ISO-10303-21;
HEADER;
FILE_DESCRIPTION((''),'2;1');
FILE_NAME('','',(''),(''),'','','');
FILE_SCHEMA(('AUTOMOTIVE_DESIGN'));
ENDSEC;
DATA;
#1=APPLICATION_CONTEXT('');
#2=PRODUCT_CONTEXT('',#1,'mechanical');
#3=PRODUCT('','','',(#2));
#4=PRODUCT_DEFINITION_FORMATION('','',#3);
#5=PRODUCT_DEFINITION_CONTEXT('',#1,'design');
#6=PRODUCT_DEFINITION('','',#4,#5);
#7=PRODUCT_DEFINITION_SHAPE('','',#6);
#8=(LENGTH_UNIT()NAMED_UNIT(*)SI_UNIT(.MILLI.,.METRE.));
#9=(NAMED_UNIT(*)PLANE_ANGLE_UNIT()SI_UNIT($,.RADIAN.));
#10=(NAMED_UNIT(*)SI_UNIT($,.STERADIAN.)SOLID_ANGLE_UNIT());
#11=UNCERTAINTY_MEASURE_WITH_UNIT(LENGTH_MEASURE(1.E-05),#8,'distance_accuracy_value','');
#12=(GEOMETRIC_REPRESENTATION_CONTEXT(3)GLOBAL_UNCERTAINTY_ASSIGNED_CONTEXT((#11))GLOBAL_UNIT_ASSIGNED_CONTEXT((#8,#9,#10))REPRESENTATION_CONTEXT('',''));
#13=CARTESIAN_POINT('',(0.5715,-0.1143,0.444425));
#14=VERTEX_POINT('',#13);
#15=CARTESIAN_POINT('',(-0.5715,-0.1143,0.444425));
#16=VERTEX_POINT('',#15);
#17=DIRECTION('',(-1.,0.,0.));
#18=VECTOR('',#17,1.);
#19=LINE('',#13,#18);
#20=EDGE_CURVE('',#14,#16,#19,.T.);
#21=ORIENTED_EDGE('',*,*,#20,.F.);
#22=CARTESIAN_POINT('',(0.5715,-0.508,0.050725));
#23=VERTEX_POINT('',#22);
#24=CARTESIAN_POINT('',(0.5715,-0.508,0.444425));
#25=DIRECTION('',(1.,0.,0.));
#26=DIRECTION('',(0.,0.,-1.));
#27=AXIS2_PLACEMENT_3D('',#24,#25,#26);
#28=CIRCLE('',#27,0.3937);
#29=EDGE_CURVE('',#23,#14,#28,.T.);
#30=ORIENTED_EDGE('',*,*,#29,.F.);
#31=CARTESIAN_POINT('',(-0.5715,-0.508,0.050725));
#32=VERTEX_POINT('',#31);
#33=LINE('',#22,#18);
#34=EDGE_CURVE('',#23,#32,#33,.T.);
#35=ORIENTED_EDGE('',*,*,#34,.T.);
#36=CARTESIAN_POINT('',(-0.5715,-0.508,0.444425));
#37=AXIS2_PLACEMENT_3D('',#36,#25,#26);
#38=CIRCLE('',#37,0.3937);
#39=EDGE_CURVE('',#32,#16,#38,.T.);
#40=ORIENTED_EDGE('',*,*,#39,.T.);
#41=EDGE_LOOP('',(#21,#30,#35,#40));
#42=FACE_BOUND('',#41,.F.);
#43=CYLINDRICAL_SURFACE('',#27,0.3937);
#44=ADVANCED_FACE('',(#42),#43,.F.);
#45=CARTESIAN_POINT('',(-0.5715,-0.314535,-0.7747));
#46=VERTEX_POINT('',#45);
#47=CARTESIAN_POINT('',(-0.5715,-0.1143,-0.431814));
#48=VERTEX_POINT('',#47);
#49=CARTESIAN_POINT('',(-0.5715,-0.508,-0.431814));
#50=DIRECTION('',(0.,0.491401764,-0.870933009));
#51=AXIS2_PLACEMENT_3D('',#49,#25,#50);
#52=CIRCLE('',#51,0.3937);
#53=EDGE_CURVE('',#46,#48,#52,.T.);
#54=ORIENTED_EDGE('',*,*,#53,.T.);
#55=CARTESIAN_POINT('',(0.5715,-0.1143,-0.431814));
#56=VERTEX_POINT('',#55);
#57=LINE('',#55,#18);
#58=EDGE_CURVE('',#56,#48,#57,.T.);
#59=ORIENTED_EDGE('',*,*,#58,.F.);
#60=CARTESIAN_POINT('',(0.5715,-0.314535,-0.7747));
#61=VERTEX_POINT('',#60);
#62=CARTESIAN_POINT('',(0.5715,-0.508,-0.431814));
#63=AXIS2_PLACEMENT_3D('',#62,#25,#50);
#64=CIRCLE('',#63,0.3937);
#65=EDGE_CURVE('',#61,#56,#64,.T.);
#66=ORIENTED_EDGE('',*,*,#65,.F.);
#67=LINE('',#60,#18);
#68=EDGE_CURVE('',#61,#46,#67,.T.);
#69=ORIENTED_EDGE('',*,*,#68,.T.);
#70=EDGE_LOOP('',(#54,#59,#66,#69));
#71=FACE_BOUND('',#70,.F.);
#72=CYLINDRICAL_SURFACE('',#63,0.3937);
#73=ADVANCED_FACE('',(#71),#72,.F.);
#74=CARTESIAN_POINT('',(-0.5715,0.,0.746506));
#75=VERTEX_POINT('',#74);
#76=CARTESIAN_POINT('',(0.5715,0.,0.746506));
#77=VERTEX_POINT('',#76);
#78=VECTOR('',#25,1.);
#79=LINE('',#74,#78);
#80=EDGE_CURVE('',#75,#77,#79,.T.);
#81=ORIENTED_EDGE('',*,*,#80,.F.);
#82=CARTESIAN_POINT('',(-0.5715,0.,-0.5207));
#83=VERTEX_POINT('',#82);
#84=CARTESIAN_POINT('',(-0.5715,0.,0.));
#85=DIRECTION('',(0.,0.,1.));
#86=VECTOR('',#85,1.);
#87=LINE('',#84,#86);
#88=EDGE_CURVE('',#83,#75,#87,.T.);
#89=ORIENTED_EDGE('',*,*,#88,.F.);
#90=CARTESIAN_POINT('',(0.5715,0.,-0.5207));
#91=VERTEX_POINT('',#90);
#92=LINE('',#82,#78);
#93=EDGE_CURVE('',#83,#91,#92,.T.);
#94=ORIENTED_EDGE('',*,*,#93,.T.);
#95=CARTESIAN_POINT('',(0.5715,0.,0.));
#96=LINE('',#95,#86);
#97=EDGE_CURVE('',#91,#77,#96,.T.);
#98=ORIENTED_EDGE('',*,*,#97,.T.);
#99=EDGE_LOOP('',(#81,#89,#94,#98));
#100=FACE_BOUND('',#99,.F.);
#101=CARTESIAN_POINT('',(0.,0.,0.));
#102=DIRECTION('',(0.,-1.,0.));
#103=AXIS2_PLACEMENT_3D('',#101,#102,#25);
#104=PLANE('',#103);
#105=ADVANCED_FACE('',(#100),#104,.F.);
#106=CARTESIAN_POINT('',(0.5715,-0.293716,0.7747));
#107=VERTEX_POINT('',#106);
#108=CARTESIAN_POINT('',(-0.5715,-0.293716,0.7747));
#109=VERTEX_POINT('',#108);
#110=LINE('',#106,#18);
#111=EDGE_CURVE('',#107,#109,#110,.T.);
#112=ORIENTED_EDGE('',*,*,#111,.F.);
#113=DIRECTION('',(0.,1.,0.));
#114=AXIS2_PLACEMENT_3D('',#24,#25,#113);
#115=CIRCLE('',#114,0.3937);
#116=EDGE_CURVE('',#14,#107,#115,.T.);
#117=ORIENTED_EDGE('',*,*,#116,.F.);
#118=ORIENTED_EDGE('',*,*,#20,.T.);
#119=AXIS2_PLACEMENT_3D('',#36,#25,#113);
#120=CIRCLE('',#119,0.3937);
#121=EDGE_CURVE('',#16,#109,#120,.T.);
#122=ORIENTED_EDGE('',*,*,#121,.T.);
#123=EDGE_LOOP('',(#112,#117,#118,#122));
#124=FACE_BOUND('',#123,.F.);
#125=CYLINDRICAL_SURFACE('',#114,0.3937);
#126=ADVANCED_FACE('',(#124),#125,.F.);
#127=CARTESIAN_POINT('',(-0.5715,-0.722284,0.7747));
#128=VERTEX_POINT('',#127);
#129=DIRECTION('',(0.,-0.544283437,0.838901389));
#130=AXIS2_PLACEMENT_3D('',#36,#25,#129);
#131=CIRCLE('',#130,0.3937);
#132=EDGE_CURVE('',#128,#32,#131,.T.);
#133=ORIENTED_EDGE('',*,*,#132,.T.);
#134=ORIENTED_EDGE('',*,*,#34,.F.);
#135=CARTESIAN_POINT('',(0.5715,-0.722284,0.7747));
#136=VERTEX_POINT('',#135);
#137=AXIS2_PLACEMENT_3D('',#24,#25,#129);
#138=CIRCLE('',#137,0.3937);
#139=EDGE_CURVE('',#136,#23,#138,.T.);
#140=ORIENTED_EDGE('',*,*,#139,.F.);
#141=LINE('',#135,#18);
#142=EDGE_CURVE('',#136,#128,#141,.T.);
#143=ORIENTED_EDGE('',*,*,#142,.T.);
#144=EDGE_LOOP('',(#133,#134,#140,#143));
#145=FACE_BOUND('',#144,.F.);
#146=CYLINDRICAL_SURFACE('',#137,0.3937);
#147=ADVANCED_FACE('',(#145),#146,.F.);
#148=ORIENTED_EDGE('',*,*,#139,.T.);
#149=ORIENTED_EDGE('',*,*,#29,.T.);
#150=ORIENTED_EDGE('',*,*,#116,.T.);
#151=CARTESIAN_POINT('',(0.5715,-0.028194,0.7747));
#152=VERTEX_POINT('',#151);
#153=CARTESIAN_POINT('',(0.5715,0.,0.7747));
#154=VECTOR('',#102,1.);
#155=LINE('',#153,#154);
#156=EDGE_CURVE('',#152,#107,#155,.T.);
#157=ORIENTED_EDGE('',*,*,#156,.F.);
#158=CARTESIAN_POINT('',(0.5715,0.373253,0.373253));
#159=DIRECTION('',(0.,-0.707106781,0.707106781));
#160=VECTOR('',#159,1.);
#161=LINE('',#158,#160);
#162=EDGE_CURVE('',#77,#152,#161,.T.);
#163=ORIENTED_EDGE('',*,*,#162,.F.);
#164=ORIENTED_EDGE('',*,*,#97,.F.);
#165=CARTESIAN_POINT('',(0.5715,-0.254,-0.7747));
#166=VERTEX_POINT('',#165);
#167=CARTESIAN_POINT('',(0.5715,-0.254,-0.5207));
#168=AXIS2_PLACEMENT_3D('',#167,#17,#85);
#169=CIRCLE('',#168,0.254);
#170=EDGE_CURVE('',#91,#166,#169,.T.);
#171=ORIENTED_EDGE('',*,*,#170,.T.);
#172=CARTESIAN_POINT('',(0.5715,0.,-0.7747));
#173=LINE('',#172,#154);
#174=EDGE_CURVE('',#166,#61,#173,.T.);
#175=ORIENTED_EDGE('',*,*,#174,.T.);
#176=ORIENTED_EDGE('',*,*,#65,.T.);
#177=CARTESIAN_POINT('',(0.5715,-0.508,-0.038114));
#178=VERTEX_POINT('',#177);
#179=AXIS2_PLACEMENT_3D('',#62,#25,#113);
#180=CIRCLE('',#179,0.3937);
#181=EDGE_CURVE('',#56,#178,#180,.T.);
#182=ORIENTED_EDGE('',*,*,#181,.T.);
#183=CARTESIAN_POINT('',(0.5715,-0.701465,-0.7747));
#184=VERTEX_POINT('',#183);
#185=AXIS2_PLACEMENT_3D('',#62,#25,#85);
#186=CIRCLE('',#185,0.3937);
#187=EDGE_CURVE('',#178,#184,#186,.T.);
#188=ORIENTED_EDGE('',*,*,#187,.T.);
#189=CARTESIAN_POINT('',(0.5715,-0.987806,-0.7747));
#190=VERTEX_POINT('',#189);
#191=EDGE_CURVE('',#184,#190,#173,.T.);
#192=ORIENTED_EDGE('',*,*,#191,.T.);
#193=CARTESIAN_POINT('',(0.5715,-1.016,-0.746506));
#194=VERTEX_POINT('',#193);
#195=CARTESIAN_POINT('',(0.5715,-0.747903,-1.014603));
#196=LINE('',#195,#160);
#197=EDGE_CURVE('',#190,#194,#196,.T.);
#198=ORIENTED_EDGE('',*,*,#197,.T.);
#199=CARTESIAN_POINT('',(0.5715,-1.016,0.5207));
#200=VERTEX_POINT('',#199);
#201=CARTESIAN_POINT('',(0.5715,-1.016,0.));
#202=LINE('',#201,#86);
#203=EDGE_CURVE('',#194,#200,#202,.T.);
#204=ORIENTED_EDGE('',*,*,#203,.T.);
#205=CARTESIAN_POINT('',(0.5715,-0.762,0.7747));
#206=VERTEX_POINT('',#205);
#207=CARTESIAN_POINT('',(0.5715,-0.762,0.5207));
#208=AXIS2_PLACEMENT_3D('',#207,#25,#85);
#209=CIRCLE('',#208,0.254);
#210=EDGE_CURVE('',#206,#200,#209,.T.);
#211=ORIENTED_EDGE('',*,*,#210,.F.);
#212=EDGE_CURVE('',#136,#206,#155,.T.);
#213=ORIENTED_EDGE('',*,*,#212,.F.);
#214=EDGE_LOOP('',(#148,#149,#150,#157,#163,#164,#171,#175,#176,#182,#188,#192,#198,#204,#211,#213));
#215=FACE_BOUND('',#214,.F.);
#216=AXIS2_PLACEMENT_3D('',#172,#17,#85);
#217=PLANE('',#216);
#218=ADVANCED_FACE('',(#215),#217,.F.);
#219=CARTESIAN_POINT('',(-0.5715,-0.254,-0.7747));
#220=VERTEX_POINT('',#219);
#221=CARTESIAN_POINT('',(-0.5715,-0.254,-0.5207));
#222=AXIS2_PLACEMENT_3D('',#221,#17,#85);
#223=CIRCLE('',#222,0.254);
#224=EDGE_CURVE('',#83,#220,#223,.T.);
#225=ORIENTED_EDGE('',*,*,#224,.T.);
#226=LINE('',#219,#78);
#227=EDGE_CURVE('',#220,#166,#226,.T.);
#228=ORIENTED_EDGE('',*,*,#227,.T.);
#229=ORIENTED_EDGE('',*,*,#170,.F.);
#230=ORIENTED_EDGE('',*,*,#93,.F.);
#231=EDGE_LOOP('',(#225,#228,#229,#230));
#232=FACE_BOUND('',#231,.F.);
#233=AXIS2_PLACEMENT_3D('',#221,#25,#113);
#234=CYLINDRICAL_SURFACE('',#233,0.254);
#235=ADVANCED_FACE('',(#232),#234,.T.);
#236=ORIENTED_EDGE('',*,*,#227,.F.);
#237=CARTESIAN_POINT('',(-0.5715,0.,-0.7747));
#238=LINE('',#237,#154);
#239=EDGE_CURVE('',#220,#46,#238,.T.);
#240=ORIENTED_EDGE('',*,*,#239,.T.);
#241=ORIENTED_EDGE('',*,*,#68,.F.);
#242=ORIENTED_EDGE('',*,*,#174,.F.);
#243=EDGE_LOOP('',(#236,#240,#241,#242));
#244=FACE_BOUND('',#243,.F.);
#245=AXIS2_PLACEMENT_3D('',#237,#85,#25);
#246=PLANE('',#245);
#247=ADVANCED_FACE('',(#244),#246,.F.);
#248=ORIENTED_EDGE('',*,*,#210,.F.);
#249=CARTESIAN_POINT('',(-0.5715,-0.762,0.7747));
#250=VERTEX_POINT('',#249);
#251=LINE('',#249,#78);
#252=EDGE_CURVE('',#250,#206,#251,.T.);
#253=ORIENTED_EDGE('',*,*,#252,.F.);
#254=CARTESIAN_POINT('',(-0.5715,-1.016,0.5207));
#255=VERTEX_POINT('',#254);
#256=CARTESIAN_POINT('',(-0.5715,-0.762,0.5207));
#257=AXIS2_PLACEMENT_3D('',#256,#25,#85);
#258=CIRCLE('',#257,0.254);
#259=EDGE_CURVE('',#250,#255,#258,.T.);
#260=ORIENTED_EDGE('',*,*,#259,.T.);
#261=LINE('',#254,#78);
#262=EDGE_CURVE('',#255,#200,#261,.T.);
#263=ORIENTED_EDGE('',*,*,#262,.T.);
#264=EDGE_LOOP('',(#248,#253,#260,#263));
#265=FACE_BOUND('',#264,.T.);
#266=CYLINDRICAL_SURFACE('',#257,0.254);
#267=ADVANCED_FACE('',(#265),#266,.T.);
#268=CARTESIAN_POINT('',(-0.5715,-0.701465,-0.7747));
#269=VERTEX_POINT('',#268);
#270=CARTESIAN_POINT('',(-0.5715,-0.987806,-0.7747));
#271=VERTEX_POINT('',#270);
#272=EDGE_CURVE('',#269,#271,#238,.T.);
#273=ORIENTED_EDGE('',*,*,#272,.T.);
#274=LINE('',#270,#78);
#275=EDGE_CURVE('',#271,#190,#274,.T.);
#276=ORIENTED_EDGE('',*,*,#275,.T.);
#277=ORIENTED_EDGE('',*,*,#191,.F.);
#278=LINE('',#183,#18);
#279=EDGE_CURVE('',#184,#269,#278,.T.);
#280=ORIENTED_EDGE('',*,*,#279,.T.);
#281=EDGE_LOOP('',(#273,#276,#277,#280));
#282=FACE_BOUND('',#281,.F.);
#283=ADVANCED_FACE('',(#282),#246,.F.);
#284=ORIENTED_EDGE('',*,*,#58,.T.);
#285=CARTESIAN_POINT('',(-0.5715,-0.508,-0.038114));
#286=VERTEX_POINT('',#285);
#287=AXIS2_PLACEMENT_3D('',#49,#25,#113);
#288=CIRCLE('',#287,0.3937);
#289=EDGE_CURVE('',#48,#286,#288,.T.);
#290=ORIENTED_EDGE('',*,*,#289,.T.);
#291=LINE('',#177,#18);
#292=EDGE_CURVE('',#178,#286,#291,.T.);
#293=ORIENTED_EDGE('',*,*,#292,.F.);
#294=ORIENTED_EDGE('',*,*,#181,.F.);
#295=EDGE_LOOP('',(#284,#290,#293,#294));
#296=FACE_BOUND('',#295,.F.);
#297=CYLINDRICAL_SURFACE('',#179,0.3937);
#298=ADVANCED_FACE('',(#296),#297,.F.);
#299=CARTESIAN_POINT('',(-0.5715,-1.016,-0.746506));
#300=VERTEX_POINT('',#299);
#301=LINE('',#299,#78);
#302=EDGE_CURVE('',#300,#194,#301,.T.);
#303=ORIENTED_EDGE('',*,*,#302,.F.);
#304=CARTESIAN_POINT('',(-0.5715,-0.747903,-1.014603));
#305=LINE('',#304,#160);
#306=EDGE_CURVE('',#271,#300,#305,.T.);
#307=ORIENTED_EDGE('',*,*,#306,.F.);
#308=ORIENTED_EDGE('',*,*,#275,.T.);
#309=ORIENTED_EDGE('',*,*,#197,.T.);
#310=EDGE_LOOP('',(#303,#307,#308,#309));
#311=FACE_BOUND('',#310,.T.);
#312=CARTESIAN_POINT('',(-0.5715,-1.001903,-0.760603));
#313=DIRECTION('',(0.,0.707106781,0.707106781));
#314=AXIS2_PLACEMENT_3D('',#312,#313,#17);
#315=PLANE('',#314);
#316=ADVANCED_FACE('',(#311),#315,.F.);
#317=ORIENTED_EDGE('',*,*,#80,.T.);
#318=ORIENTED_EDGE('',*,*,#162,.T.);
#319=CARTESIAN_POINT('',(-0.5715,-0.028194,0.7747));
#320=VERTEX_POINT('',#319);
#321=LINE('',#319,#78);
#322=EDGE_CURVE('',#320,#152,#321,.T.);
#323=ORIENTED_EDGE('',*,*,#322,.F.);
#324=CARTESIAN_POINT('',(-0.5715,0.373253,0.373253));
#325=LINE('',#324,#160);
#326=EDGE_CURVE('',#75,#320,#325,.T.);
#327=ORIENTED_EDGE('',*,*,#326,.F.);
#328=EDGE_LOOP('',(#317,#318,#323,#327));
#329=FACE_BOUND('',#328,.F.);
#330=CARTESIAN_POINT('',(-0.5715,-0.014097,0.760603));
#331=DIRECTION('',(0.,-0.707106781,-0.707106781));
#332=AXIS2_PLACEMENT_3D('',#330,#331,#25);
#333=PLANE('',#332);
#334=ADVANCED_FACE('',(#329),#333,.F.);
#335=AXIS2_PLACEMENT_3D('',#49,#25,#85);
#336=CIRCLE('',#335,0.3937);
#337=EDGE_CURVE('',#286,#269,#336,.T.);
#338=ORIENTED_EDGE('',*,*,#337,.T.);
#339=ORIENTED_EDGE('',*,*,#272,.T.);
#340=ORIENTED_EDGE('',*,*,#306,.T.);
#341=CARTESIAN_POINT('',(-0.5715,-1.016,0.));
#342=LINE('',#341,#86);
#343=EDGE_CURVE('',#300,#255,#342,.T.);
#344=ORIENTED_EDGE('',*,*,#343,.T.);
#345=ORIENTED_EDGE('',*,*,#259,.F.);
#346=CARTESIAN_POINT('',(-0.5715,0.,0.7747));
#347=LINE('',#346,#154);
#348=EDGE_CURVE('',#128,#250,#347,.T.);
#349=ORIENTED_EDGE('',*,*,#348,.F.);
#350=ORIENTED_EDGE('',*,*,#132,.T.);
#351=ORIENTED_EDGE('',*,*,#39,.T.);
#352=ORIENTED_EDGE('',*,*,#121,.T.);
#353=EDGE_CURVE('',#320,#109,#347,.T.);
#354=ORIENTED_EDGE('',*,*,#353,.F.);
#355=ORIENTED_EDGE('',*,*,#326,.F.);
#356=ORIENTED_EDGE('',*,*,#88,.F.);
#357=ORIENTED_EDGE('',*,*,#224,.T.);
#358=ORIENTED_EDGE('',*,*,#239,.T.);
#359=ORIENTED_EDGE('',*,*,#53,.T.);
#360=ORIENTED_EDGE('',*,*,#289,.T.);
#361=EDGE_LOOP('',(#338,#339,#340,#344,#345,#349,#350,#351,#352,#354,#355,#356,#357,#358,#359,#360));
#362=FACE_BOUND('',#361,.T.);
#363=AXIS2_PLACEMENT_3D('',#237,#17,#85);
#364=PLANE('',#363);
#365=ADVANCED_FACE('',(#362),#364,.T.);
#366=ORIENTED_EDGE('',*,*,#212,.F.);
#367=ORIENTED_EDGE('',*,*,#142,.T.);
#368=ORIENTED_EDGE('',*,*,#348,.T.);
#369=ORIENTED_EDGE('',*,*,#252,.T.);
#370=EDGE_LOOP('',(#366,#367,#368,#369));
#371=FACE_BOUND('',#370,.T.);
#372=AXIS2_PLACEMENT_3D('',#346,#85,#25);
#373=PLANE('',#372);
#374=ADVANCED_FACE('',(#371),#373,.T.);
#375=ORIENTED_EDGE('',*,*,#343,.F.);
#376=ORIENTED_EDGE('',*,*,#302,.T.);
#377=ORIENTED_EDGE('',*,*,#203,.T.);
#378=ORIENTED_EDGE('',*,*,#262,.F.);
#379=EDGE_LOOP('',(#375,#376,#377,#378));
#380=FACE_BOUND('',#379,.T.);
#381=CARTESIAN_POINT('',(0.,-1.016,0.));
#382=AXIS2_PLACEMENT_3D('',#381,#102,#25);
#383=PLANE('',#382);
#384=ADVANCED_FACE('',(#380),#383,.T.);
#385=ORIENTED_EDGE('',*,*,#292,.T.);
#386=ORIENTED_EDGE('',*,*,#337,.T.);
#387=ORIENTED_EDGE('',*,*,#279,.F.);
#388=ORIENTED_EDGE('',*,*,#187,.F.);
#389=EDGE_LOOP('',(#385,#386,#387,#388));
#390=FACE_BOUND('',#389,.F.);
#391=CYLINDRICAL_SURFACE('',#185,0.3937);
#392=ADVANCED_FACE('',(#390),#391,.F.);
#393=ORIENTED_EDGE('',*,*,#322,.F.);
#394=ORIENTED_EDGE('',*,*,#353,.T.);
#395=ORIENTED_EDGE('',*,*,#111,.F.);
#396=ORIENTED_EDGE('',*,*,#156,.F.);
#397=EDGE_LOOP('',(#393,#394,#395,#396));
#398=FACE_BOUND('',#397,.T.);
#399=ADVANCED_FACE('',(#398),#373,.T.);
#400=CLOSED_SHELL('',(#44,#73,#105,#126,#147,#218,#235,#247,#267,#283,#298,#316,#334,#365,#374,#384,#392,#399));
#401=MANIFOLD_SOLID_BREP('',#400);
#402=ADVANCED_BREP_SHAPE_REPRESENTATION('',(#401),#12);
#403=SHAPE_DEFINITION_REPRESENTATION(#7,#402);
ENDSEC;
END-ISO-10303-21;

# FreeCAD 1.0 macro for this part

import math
import FreeCAD as App
import Part
import Sketcher
Q = App.Units.Quantity


def edges_at(feature, points):
    """Names of the edges that pass closest to the given points."""
    edges = feature.Shape.Edges
    near = lambda p: min(range(len(edges)), key=lambda i: edges[i].distToShape(Part.Vertex(*p))[0])
    return sorted({f"Edge{near(p) + 1}" for p in points})

doc = App.newDocument("Part")
body = doc.addObject("PartDesign::Body", "Body")

# Sketch on XZ plane
sketch1 = body.newObject("Sketcher::SketchObject", "Sketch")
sketch1.AttachmentSupport = (doc.getObject("XZ_Plane"), [""])
sketch1.MapMode = "FlatFace"
sketch1.addGeometry([
    Part.LineSegment(App.Vector(-0.6, 0.8, 0), App.Vector(-0.6, -0.8, 0)),
    Part.LineSegment(App.Vector(-0.6, -0.8, 0), App.Vector(0.6, -0.8, 0)),
    Part.LineSegment(App.Vector(0.6, -0.8, 0), App.Vector(0.6, 0.8, 0)),
    Part.LineSegment(App.Vector(0.6, 0.8, 0), App.Vector(-0.6, 0.8, 0)),
], False)
sketch1.addConstraint([
    Sketcher.Constraint("Coincident", 0, 2, 1, 1),
    Sketcher.Constraint("Coincident", 1, 2, 2, 1),
    Sketcher.Constraint("Coincident", 2, 2, 3, 1),
    Sketcher.Constraint("Coincident", 3, 2, 0, 1),
    Sketcher.Constraint("Vertical", 0),
    Sketcher.Constraint("Horizontal", 1),
    Sketcher.Constraint("Vertical", 2),
    Sketcher.Constraint("Horizontal", 3),
    Sketcher.Constraint("Symmetric", 0, 2, 2, 2, -1, 1),
    Sketcher.Constraint("DistanceX", 1, 1, 1, 2, Q("0.045 in")),
    Sketcher.Constraint("DistanceY", 0, 2, 0, 1, Q("0.061 in")),
])
pad1 = body.newObject("PartDesign::Pad", "Pad")
pad1.Profile = sketch1
pad1.Length = Q("0.04 in")

# Sketch on YZ plane
sketch2 = body.newObject("Sketcher::SketchObject", "Sketch001")
sketch2.AttachmentSupport = (doc.getObject("YZ_Plane"), [""])
sketch2.MapMode = "FlatFace"
sketch2.AttachmentOffset = App.Placement(App.Vector(0, 0, 0.0225 * 25.4), App.Rotation())
sketch2.addGeometry([
    Part.ArcOfCircle(Part.Circle(App.Vector(-0.51, 0.44, 0), App.Vector(0, 0, 1), 0.39), math.radians(123), math.radians(270)),  # 0
    Part.ArcOfCircle(Part.Circle(App.Vector(-0.51, 0.44, 0), App.Vector(0, 0, 1), 0.39), math.radians(-90), math.radians(0)),  # 1
    Part.ArcOfCircle(Part.Circle(App.Vector(-0.51, 0.44, 0), App.Vector(0, 0, 1), 0.39), math.radians(0), math.radians(57)),  # 2
    Part.LineSegment(App.Vector(-0.29, 0.77, 0), App.Vector(-0.72, 0.77, 0)),  # 3
    Part.ArcOfCircle(Part.Circle(App.Vector(-0.51, -0.43, 0), App.Vector(0, 0, 1), 0.39), math.radians(90), math.radians(241)),  # 4
    Part.LineSegment(App.Vector(-0.7, -0.77, 0), App.Vector(-0.31, -0.77, 0)),  # 5
    Part.ArcOfCircle(Part.Circle(App.Vector(-0.51, -0.43, 0), App.Vector(0, 0, 1), 0.39), math.radians(-61), math.radians(0)),  # 6
    Part.ArcOfCircle(Part.Circle(App.Vector(-0.51, -0.43, 0), App.Vector(0, 0, 1), 0.39), math.radians(0), math.radians(90)),  # 7
], False)
sketch2.addConstraint([
    Sketcher.Constraint("Tangent", 0, 2, 1, 1),
    Sketcher.Constraint("Tangent", 1, 2, 2, 1),
    Sketcher.Constraint("Coincident", 2, 2, 3, 1),
    Sketcher.Constraint("Coincident", 3, 2, 0, 1),
    Sketcher.Constraint("Coincident", 4, 2, 5, 1),
    Sketcher.Constraint("Coincident", 5, 2, 6, 1),
    Sketcher.Constraint("Tangent", 6, 2, 7, 1),
    Sketcher.Constraint("Tangent", 7, 2, 4, 1),
    Sketcher.Constraint("Horizontal", 3),
    Sketcher.Constraint("Horizontal", 5),
    Sketcher.Constraint("Coincident", 2, 3, 0, 3),
    Sketcher.Constraint("Coincident", 6, 3, 4, 3),
    Sketcher.Constraint("Equal", 2, 4),
    Sketcher.Constraint("Horizontal", 2, 3, 1, 2),
    Sketcher.Constraint("Horizontal", 7, 3, 6, 2),
    Sketcher.Constraint("Vertical", 2, 3, 4, 3),
    Sketcher.Constraint("Vertical", 7, 3, 0, 2),
    Sketcher.Constraint("Vertical", 0, 2, 7, 2),
    Sketcher.Constraint("Radius", 0, Q("0.0155 in")),
    Sketcher.Constraint("DistanceX", 0, 3, -1, 1, Q("0.02 in")),
    Sketcher.Constraint("DistanceY", -1, 1, 2, 2, Q("0.0305 in")),
    Sketcher.Constraint("DistanceY", 4, 2, -1, 1, Q("0.0305 in")),
    Sketcher.Constraint("DistanceX", 3, 2, 3, 1, Q("0.428569 mm")),
    Sketcher.Constraint("DistanceX", 5, 1, 5, 2, Q("0.38693 mm")),
])
pocket1 = body.newObject("PartDesign::Pocket", "Pocket")
pocket1.Profile = sketch2
pocket1.Length = Q("1 in")
doc.recompute()

fillet = body.newObject("PartDesign::Fillet", "Fillet")
fillet.Base = (pocket1, edges_at(pocket1, [(0, -1.016, 0.775)]))
fillet.Radius = Q("0.01 in")
doc.recompute()

fillet2 = body.newObject("PartDesign::Fillet", "Fillet001")
fillet2.Base = (fillet, edges_at(fillet, [(0, 0, -0.775)]))
fillet2.Radius = Q("0.01 in")
doc.recompute()

chamfer = body.newObject("PartDesign::Chamfer", "Chamfer")
chamfer.Base = (fillet2, edges_at(fillet2, [(0, 0, 0.775), (0, -1.016, -0.775)]))
chamfer.Size = 0.028194

doc.recompute()
